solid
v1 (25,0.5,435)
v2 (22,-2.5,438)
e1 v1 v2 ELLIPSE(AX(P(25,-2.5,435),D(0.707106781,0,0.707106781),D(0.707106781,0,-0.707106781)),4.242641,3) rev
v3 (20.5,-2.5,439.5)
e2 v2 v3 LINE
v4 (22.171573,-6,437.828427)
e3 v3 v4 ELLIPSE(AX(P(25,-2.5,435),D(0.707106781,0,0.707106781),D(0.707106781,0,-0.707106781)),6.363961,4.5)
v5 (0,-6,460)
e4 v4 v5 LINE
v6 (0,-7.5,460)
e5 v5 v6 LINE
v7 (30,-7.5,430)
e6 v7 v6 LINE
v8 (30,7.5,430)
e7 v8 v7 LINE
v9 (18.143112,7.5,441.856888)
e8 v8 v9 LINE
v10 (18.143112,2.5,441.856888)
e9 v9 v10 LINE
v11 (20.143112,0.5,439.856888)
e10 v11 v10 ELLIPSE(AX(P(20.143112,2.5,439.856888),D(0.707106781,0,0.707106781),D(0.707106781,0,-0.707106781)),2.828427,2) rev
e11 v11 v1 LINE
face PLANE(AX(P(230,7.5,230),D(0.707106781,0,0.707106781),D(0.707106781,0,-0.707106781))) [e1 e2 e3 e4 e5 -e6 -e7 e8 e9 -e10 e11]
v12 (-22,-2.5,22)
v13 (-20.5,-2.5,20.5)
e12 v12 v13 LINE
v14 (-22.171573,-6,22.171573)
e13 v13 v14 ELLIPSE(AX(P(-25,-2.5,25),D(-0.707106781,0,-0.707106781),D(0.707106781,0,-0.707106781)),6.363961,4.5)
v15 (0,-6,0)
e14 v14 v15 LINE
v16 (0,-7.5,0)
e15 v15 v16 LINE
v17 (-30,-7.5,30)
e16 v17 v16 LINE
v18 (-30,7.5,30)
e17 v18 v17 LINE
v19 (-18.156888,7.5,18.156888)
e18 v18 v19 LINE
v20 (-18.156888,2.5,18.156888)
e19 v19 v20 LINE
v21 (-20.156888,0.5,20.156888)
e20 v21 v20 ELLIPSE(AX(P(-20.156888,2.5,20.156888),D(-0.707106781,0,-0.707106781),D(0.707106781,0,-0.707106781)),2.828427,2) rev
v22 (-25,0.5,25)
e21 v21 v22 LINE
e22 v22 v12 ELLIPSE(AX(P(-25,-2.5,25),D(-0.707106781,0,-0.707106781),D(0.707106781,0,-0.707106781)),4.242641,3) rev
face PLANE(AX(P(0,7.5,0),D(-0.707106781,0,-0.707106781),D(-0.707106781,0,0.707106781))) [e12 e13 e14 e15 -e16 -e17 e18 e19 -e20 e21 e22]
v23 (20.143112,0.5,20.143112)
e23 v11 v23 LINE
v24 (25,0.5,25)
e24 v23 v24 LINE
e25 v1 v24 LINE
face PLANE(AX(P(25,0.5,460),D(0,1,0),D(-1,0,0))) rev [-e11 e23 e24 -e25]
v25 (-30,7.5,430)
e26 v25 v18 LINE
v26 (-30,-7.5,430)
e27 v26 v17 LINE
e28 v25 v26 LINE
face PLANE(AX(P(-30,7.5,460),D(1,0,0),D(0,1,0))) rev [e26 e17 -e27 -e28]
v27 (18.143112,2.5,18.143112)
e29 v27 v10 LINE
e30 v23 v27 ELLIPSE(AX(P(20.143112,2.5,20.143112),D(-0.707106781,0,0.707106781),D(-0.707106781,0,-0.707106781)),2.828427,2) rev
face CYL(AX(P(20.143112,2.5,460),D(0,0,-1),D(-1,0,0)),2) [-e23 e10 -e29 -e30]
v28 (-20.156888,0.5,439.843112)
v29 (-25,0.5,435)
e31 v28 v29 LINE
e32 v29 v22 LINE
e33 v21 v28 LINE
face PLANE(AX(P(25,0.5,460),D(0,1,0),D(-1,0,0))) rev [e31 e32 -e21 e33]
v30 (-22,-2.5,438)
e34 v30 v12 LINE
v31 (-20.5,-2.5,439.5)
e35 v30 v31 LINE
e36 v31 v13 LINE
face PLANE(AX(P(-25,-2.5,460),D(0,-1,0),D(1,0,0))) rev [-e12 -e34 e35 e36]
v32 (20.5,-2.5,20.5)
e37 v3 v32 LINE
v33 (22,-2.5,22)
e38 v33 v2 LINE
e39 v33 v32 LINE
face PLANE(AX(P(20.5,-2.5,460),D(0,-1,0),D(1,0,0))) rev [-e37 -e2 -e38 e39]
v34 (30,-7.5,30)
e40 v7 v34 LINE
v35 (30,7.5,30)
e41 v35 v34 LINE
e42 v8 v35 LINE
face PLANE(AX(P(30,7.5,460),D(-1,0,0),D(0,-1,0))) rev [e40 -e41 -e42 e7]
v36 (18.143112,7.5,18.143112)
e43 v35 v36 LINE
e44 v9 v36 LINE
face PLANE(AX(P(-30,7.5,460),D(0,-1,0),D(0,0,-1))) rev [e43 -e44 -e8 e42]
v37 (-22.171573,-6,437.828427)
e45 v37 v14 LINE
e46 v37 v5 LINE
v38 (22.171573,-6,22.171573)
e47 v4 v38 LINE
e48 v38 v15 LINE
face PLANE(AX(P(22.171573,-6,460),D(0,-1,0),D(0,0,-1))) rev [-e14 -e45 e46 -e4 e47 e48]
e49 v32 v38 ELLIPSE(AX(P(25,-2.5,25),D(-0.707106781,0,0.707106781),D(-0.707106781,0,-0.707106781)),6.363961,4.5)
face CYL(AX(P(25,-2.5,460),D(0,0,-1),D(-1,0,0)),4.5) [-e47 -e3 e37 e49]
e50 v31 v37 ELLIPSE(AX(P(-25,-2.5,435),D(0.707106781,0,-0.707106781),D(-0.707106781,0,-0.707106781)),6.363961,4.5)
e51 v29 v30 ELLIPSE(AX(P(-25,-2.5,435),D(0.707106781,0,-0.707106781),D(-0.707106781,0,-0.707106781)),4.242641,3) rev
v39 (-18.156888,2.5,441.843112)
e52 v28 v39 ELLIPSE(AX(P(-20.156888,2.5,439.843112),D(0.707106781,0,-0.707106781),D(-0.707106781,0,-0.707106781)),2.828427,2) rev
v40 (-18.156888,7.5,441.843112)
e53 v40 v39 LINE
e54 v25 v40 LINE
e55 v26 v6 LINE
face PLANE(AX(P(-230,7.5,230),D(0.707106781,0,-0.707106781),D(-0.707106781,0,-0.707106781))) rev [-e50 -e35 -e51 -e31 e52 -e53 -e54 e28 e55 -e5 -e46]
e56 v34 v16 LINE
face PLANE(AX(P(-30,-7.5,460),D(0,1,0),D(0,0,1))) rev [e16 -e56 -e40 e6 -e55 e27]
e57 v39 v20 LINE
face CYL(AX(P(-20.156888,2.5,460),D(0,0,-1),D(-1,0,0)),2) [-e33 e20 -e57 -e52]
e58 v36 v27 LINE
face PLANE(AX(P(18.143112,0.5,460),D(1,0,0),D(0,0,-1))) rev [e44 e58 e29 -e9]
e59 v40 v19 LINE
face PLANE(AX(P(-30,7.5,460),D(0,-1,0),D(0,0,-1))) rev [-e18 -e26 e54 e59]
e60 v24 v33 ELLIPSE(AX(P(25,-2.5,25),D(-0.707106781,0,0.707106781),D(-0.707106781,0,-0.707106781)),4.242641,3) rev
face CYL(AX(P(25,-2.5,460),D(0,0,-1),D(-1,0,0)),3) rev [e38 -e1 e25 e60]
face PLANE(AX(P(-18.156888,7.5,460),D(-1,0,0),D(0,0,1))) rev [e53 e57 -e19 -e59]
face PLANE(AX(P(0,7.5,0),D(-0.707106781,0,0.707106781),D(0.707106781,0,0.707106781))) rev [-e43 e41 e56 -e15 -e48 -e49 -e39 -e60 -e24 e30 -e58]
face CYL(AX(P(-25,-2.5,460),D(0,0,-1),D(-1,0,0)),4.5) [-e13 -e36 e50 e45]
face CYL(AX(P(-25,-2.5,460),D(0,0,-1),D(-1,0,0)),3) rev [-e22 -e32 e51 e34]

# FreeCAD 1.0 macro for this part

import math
import FreeCAD as App
import Part
import Sketcher
Q = App.Units.Quantity


def edges_at(feature, points):
    """Names of the edges that pass closest to the given points."""
    edges = feature.Shape.Edges
    near = lambda p: min(range(len(edges)), key=lambda i: edges[i].distToShape(Part.Vertex(*p))[0])
    return sorted({f"Edge{near(p) + 1}" for p in points})

doc = App.newDocument("Part")
body = doc.addObject("PartDesign::Body", "Body")

# Sketch on XY plane
sketch1 = doc.addObject("Sketcher::SketchObject", "Sketch")
body.addObject(sketch1)
sketch1.AttachmentSupport = (doc.XY_Plane, [""])
sketch1.MapMode = "FlatFace"
sketch1.addGeometry(Part.LineSegment(App.Vector(-30, 8, 0), App.Vector(-30, -8, 0)), False)
sketch1.addGeometry(Part.LineSegment(App.Vector(-30, -8, 0), App.Vector(30, -8, 0)), False)
sketch1.addGeometry(Part.LineSegment(App.Vector(30, -8, 0), App.Vector(30, 8, 0)), False)
sketch1.addGeometry(Part.LineSegment(App.Vector(30, 8, 0), App.Vector(-30, 8, 0)), False)
sketch1.addConstraint(Sketcher.Constraint("Coincident", 0, 2, 1, 1))
sketch1.addConstraint(Sketcher.Constraint("Coincident", 1, 2, 2, 1))
sketch1.addConstraint(Sketcher.Constraint("Coincident", 2, 2, 3, 1))
sketch1.addConstraint(Sketcher.Constraint("Coincident", 3, 2, 0, 1))
sketch1.addConstraint(Sketcher.Constraint("Vertical", 0))
sketch1.addConstraint(Sketcher.Constraint("Horizontal", 1))
sketch1.addConstraint(Sketcher.Constraint("Vertical", 2))
sketch1.addConstraint(Sketcher.Constraint("Horizontal", 3))
sketch1.addConstraint(Sketcher.Constraint("Symmetric", 0, 2, 2, 2, -1, 1))
sketch1.addConstraint(Sketcher.Constraint("DistanceX", 1, 1, 1, 2, Q("60 mm")))
sketch1.addConstraint(Sketcher.Constraint("DistanceY", 0, 2, 0, 1, Q("15 mm")))
pad1 = doc.addObject("PartDesign::Pad", "Pad")
body.addObject(pad1)
pad1.Profile = sketch1
pad1.Length = 460

# Sketch on XY plane
sketch2 = doc.addObject("Sketcher::SketchObject", "Sketch001")
body.addObject(sketch2)
sketch2.AttachmentSupport = (doc.XY_Plane, [""])
sketch2.MapMode = "FlatFace"
sketch2.addGeometry(Part.Circle(App.Vector(25, -2.5, 0), App.Vector(0, 0, 1), 3), False)
sketch2.addGeometry(Part.Circle(App.Vector(-25, -2.5, 0), App.Vector(0, 0, 1), 3), False)
sketch2.addConstraint(Sketcher.Constraint("Equal", 0, 1))
sketch2.addConstraint(Sketcher.Constraint("Symmetric", 0, 3, 1, 3, -2))
sketch2.addConstraint(Sketcher.Constraint("Diameter", 0, Q("6 mm")))
sketch2.addConstraint(Sketcher.Constraint("DistanceX", -1, 1, 0, 3, Q("25 mm")))
sketch2.addConstraint(Sketcher.Constraint("DistanceY", 0, 3, -1, 1, Q("2.5 mm")))
pocket1 = doc.addObject("PartDesign::Pocket", "Pocket")
body.addObject(pocket1)
pocket1.Profile = sketch2
pocket1.Type = "ThroughAll"
pocket1.Reversed = True

# Sketch on XY plane
sketch3 = doc.addObject("Sketcher::SketchObject", "Sketch002")
body.addObject(sketch3)
sketch3.AttachmentSupport = (doc.XY_Plane, [""])
sketch3.MapMode = "FlatFace"
sketch3.addGeometry(Part.LineSegment(App.Vector(22.2, -6, 0), App.Vector(-22.2, -6, 0)), False)
sketch3.addGeometry(Part.ArcOfCircle(Part.Circle(App.Vector(-25, -2.5, 0), App.Vector(0, 0, 1), 4.5), math.radians(-51), math.radians(0)), False)
sketch3.addGeometry(Part.LineSegment(App.Vector(-20.5, -2.5, 0), App.Vector(-25, -2.5, 0)), False)
sketch3.addGeometry(Part.LineSegment(App.Vector(-25, -2.5, 0), App.Vector(-25, 0.5, 0)), False)
sketch3.addGeometry(Part.LineSegment(App.Vector(-25, 0.5, 0), App.Vector(25, 0.5, 0)), False)
sketch3.addGeometry(Part.LineSegment(App.Vector(25, 0.5, 0), App.Vector(25, -2.5, 0)), False)
sketch3.addGeometry(Part.LineSegment(App.Vector(25, -2.5, 0), App.Vector(20.5, -2.5, 0)), False)
sketch3.addGeometry(Part.ArcOfCircle(Part.Circle(App.Vector(25, -2.5, 0), App.Vector(0, 0, 1), 4.5), math.radians(180), math.radians(231)), False)
sketch3.addConstraint(Sketcher.Constraint("Coincident", 0, 2, 1, 1))
sketch3.addConstraint(Sketcher.Constraint("Coincident", 1, 2, 2, 1))
sketch3.addConstraint(Sketcher.Constraint("Coincident", 2, 2, 3, 1))
sketch3.addConstraint(Sketcher.Constraint("Coincident", 3, 2, 4, 1))
sketch3.addConstraint(Sketcher.Constraint("Coincident", 4, 2, 5, 1))
sketch3.addConstraint(Sketcher.Constraint("Coincident", 5, 2, 6, 1))
sketch3.addConstraint(Sketcher.Constraint("Coincident", 6, 2, 7, 1))
sketch3.addConstraint(Sketcher.Constraint("Coincident", 7, 2, 0, 1))
sketch3.addConstraint(Sketcher.Constraint("Horizontal", 0))
sketch3.addConstraint(Sketcher.Constraint("Horizontal", 2))
sketch3.addConstraint(Sketcher.Constraint("Vertical", 3))
sketch3.addConstraint(Sketcher.Constraint("Horizontal", 4))
sketch3.addConstraint(Sketcher.Constraint("Vertical", 5))
sketch3.addConstraint(Sketcher.Constraint("Horizontal", 6))
sketch3.addConstraint(Sketcher.Constraint("Coincident", 2, 2, 1, 3))
sketch3.addConstraint(Sketcher.Constraint("Coincident", 5, 2, 7, 3))
sketch3.addConstraint(Sketcher.Constraint("Equal", 1, 7))
sketch3.addConstraint(Sketcher.Constraint("Symmetric", 1, 3, 7, 3, -2))
sketch3.addConstraint(Sketcher.Constraint("Radius", 1, Q("4.5 mm")))
sketch3.addConstraint(Sketcher.Constraint("DistanceX", 4, 1, 4, 2, Q("50 mm")))
sketch3.addConstraint(Sketcher.Constraint("DistanceY", 3, 1, 3, 2, Q("3 mm")))
sketch3.addConstraint(Sketcher.Constraint("DistanceY", 0, 2, -1, 1, Q("6 mm")))
sketch3.addConstraint(Sketcher.Constraint("DistanceY", 1, 3, -1, 1, Q("2.5 mm")))
pocket2 = doc.addObject("PartDesign::Pocket", "Pocket001")
body.addObject(pocket2)
pocket2.Profile = sketch3
pocket2.Type = "ThroughAll"
pocket2.Reversed = True

# Sketch on XY plane
sketch4 = doc.addObject("Sketcher::SketchObject", "Sketch003")
body.addObject(sketch4)
sketch4.AttachmentSupport = (doc.XY_Plane, [""])
sketch4.MapMode = "FlatFace"
sketch4.addGeometry(Part.LineSegment(App.Vector(18, 8, 0), App.Vector(18, 0, 0)), False)
sketch4.addGeometry(Part.LineSegment(App.Vector(18, 0, 0), App.Vector(-18, 0, 0)), False)
sketch4.addGeometry(Part.LineSegment(App.Vector(-18, 0, 0), App.Vector(-18, 8, 0)), False)
sketch4.addGeometry(Part.LineSegment(App.Vector(-18, 8, 0), App.Vector(18, 8, 0)), False)
sketch4.addConstraint(Sketcher.Constraint("Coincident", 0, 2, 1, 1))
sketch4.addConstraint(Sketcher.Constraint("Coincident", 1, 2, 2, 1))
sketch4.addConstraint(Sketcher.Constraint("Coincident", 2, 2, 3, 1))
sketch4.addConstraint(Sketcher.Constraint("Coincident", 3, 2, 0, 1))
sketch4.addConstraint(Sketcher.Constraint("Vertical", 0))
sketch4.addConstraint(Sketcher.Constraint("Horizontal", 1))
sketch4.addConstraint(Sketcher.Constraint("Vertical", 2))
sketch4.addConstraint(Sketcher.Constraint("Horizontal", 3))
sketch4.addConstraint(Sketcher.Constraint("DistanceY", 0, 2, 0, 1, Q("7 mm")))
sketch4.addConstraint(Sketcher.Constraint("DistanceX", 1, 2, 1, 1, Q("36.3 mm")))
sketch4.addConstraint(Sketcher.Constraint("DistanceY", -1, 1, 0, 2, Q("0.5 mm")))
sketch4.addConstraint(Sketcher.Constraint("DistanceX", -1, 1, 0, 2, Q("18.143112 mm")))
pocket3 = doc.addObject("PartDesign::Pocket", "Pocket002")
body.addObject(pocket3)
pocket3.Profile = sketch4
pocket3.Type = "ThroughAll"
pocket3.Reversed = True
doc.recompute()

fillet = doc.addObject("PartDesign::Fillet", "Fillet")
body.addObject(fillet)
fillet.Base = (pocket3, edges_at(pocket3, [(-18.157, 0.5, 230), (18.143, 0.5, 230)]))
fillet.Radius = 2

# Sketch on XZ plane
sketch5 = doc.addObject("Sketcher::SketchObject", "Sketch004")
body.addObject(sketch5)
sketch5.AttachmentSupport = (doc.XZ_Plane, [""])
sketch5.MapMode = "FlatFace"
sketch5.AttachmentOffset = App.Placement(App.Vector(0, 0, 7.5), App.Rotation())
sketch5.addGeometry(Part.LineSegment(App.Vector(30, 460, 0), App.Vector(0, 460, 0)), False)
sketch5.addGeometry(Part.LineSegment(App.Vector(0, 460, 0), App.Vector(30, 430, 0)), False)
sketch5.addGeometry(Part.LineSegment(App.Vector(30, 430, 0), App.Vector(30, 460, 0)), False)
sketch5.addGeometry(Part.LineSegment(App.Vector(0, 460, 0), App.Vector(-30, 460, 0)), False)
sketch5.addGeometry(Part.LineSegment(App.Vector(-30, 460, 0), App.Vector(-30, 430, 0)), False)
sketch5.addGeometry(Part.LineSegment(App.Vector(-30, 430, 0), App.Vector(0, 460, 0)), False)
sketch5.addGeometry(Part.LineSegment(App.Vector(0, 0, 0), App.Vector(-30, 30, 0)), False)
sketch5.addGeometry(Part.LineSegment(App.Vector(-30, 30, 0), App.Vector(-30, 0, 0)), False)
sketch5.addGeometry(Part.LineSegment(App.Vector(-30, 0, 0), App.Vector(0, 0, 0)), False)
sketch5.addGeometry(Part.LineSegment(App.Vector(30, 30, 0), App.Vector(0, 0, 0)), False)
sketch5.addGeometry(Part.LineSegment(App.Vector(0, 0, 0), App.Vector(30, 0, 0)), False)
sketch5.addGeometry(Part.LineSegment(App.Vector(30, 0, 0), App.Vector(30, 30, 0)), False)
sketch5.addConstraint(Sketcher.Constraint("Coincident", 0, 2, 1, 1))
sketch5.addConstraint(Sketcher.Constraint("Coincident", 1, 2, 2, 1))
sketch5.addConstraint(Sketcher.Constraint("Coincident", 2, 2, 0, 1))
sketch5.addConstraint(Sketcher.Constraint("Coincident", 3, 2, 4, 1))
sketch5.addConstraint(Sketcher.Constraint("Coincident", 4, 2, 5, 1))
sketch5.addConstraint(Sketcher.Constraint("Coincident", 5, 2, 3, 1))
sketch5.addConstraint(Sketcher.Constraint("Coincident", 6, 2, 7, 1))
sketch5.addConstraint(Sketcher.Constraint("Coincident", 7, 2, 8, 1))
sketch5.addConstraint(Sketcher.Constraint("Coincident", 8, 2, 6, 1))
sketch5.addConstraint(Sketcher.Constraint("Coincident", 9, 2, 10, 1))
sketch5.addConstraint(Sketcher.Constraint("Coincident", 10, 2, 11, 1))
sketch5.addConstraint(Sketcher.Constraint("Coincident", 11, 2, 9, 1))
sketch5.addConstraint(Sketcher.Constraint("Horizontal", 0))
sketch5.addConstraint(Sketcher.Constraint("Vertical", 2))
sketch5.addConstraint(Sketcher.Constraint("Horizontal", 3))
sketch5.addConstraint(Sketcher.Constraint("Vertical", 4))
sketch5.addConstraint(Sketcher.Constraint("Vertical", 7))
sketch5.addConstraint(Sketcher.Constraint("Horizontal", 8))
sketch5.addConstraint(Sketcher.Constraint("Horizontal", 10))
sketch5.addConstraint(Sketcher.Constraint("Vertical", 11))
sketch5.addConstraint(Sketcher.Constraint("Coincident", 8, 2, -1, 1))
sketch5.addConstraint(Sketcher.Constraint("Coincident", 9, 2, -1, 1))
sketch5.addConstraint(Sketcher.Constraint("Coincident", 5, 2, 0, 2))
sketch5.addConstraint(Sketcher.Constraint("Symmetric", 1, 2, 4, 2, -2))
sketch5.addConstraint(Sketcher.Constraint("Symmetric", 6, 2, 11, 2, -2))
sketch5.addConstraint(Sketcher.Constraint("PointOnObject", 0, 2, -2))
sketch5.addConstraint(Sketcher.Constraint("Perpendicular", 1, 5))
sketch5.addConstraint(Sketcher.Constraint("Perpendicular", 5, 6))
sketch5.addConstraint(Sketcher.Constraint("Vertical", 4, 2, 6, 2))
sketch5.addConstraint(Sketcher.Constraint("DistanceX", 0, 2, 0, 1, Q("30 mm")))
sketch5.addConstraint(Sketcher.Constraint("DistanceY", -1, 1, 0, 2, Q("460 mm")))
pocket4 = doc.addObject("PartDesign::Pocket", "Pocket003")
body.addObject(pocket4)
pocket4.Profile = sketch5
pocket4.Type = "ThroughAll"

doc.recompute()
